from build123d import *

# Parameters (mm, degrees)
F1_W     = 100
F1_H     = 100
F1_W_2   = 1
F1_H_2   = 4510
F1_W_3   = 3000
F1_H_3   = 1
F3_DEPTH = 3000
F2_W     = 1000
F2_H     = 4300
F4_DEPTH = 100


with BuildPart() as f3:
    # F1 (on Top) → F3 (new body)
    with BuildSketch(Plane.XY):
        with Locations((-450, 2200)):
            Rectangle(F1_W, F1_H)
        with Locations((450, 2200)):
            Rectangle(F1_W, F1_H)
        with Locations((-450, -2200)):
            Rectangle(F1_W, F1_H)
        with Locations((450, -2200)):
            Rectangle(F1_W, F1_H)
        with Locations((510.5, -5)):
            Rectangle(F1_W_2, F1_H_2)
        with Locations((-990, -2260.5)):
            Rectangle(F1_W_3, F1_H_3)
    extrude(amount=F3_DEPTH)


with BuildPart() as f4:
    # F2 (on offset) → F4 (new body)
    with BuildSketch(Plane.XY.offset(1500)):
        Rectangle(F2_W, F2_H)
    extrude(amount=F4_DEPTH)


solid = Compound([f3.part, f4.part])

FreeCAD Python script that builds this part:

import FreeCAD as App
import Part
import Sketcher
from FreeCAD import Vector
Q = App.Units.Quantity


def add_polygon(sketch, points):
    """Adds a closed chain of lines whose ends are joined by coincident constraints."""
    first, n = sketch.GeometryCount, len(points)
    for a, b in zip(points, points[1:] + points[:1]):
        sketch.addGeometry(Part.LineSegment(App.Vector(*a, 0), App.Vector(*b, 0)), False)
    for i in range(n):
        sketch.addConstraint(Sketcher.Constraint("Coincident", first + i, 2, first + (i + 1) % n, 1))

doc = App.newDocument("Part")
body = doc.addObject("PartDesign::Body", "Body")
body.AllowCompound = True

# Sketch on XY plane
sketch1 = doc.addObject("Sketcher::SketchObject", "Sketch")
body.addObject(sketch1)
sketch1.AttachmentSupport = (doc.XY_Plane, [""])
sketch1.MapMode = "FlatFace"
add_polygon(sketch1, [(-500, 2250), (-500, 2150), (-400, 2150), (-400, 2250)])  # lines 0-3
add_polygon(sketch1, [(400, 2250), (400, 2150), (500, 2150), (500, 2250)])  # lines 4-7
add_polygon(sketch1, [(-500, -2150), (-500, -2250), (-400, -2250), (-400, -2150)])  # lines 8-11
add_polygon(sketch1, [(400, -2150), (400, -2250), (500, -2250), (500, -2150)])  # lines 12-15
add_polygon(sketch1, [(510, 2250), (510, -2260), (511, -2260), (511, 2250)])  # lines 16-19
add_polygon(sketch1, [(-2490, -2260), (-2490, -2261), (510, -2261), (510, -2260)])  # lines 20-23
sketch1.addConstraint([
    Sketcher.Constraint("Vertical", 0),
    Sketcher.Constraint("Horizontal", 1),
    Sketcher.Constraint("Vertical", 2),
    Sketcher.Constraint("Horizontal", 3),
    Sketcher.Constraint("Vertical", 4),
    Sketcher.Constraint("Horizontal", 5),
    Sketcher.Constraint("Vertical", 6),
    Sketcher.Constraint("Horizontal", 7),
    Sketcher.Constraint("Vertical", 8),
    Sketcher.Constraint("Horizontal", 9),
    Sketcher.Constraint("Vertical", 10),
    Sketcher.Constraint("Horizontal", 11),
    Sketcher.Constraint("Vertical", 12),
    Sketcher.Constraint("Horizontal", 13),
    Sketcher.Constraint("Vertical", 14),
    Sketcher.Constraint("Horizontal", 15),
    Sketcher.Constraint("Vertical", 16),
    Sketcher.Constraint("Horizontal", 17),
    Sketcher.Constraint("Vertical", 18),
    Sketcher.Constraint("Horizontal", 19),
    Sketcher.Constraint("Vertical", 20),
    Sketcher.Constraint("Horizontal", 21),
    Sketcher.Constraint("Vertical", 22),
    Sketcher.Constraint("Horizontal", 23),
    Sketcher.Constraint("Coincident", 22, 2, 16, 2),
    Sketcher.Constraint("Symmetric", 6, 2, 8, 2, -1, 1),
    Sketcher.Constraint("Symmetric", 4, 2, 10, 2, -1, 1),
    Sketcher.Constraint("Symmetric", 2, 2, 12, 2, -1, 1),
    Sketcher.Constraint("Symmetric", 0, 2, 14, 2, -1, 1),
    Sketcher.Constraint("Symmetric", 1, 2, 4, 2, -2),
    Sketcher.Constraint("Symmetric", 3, 2, 6, 2, -2),
    Sketcher.Constraint("Horizontal", 7, 2, 18, 2),
    Sketcher.Constraint("Equal", 15, 0),
    Sketcher.Constraint("Equal", 19, 20),
    Sketcher.Constraint("DistanceX", 1, 1, 1, 2, Q("100 mm")),
    Sketcher.Constraint("DistanceX", 17, 1, 17, 2, Q("1 mm")),
    Sketcher.Constraint("DistanceX", 21, 1, 21, 2, Q("3000 mm")),
    Sketcher.Constraint("DistanceY", 16, 2, 16, 1, Q("4510 mm")),
    Sketcher.Constraint("DistanceX", 0, 2, -1, 1, Q("500 mm")),
    Sketcher.Constraint("DistanceY", -1, 1, 0, 2, Q("2150 mm")),
    Sketcher.Constraint("DistanceX", -1, 1, 16, 2, Q("510 mm")),
])
pad1 = doc.addObject("PartDesign::Pad", "Pad")
body.addObject(pad1)
pad1.Profile = sketch1
pad1.Length = 3000
body2 = doc.addObject("PartDesign::Body", "Body001")

# Sketch on XY plane
sketch2 = doc.addObject("Sketcher::SketchObject", "Sketch001")
body2.addObject(sketch2)
sketch2.AttachmentSupport = (doc.getObject("XY_Plane001"), [""])
sketch2.MapMode = "FlatFace"
sketch2.AttachmentOffset = App.Placement(Vector(0, 0, 1500), App.Rotation())
add_polygon(sketch2, [(-500, 2150), (-500, -2150), (500, -2150), (500, 2150)])  # lines 0-3
sketch2.addConstraint([
    Sketcher.Constraint("Vertical", 0),
    Sketcher.Constraint("Horizontal", 1),
    Sketcher.Constraint("Vertical", 2),
    Sketcher.Constraint("Horizontal", 3),
    Sketcher.Constraint("Symmetric", 0, 2, 2, 2, -1, 1),
    Sketcher.Constraint("DistanceX", 1, 1, 1, 2, Q("1000 mm")),
    Sketcher.Constraint("DistanceY", 0, 2, 0, 1, Q("4300 mm")),
])
pad2 = doc.addObject("PartDesign::Pad", "Pad001")
body2.addObject(pad2)
pad2.Profile = sketch2
pad2.Length = 100

doc.recompute()
